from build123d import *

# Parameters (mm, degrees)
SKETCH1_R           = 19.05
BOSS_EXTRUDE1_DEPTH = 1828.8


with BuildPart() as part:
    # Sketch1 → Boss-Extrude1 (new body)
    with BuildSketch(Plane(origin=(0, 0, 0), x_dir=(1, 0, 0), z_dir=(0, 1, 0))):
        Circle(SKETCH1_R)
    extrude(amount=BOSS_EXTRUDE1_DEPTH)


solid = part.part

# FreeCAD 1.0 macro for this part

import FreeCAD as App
import Part
import Sketcher

V = App.Vector
Q = App.Units.Quantity

doc = App.newDocument("Part")
body = doc.addObject("PartDesign::Body", "Body")

sketch1 = doc.addObject("Sketcher::SketchObject", "Sketch")
body.addObject(sketch1)
sketch1.AttachmentSupport = (doc.XZ_Plane, [""])
sketch1.MapMode = "FlatFace"
sketch1.addGeometry(Part.Circle(V(0, 0, 0), V(0, 0, 1), 19), False)
sketch1.addConstraint(Sketcher.Constraint("Coincident", 0, 3, -1, 1))
sketch1.addConstraint(Sketcher.Constraint("Diameter", 0, Q("1.5 in")))
pad1 = doc.addObject("PartDesign::Pad", "Pad")
body.addObject(pad1)
pad1.Profile = sketch1
pad1.Length = Q("72 in")
pad1.Reversed = True

doc.recompute()
